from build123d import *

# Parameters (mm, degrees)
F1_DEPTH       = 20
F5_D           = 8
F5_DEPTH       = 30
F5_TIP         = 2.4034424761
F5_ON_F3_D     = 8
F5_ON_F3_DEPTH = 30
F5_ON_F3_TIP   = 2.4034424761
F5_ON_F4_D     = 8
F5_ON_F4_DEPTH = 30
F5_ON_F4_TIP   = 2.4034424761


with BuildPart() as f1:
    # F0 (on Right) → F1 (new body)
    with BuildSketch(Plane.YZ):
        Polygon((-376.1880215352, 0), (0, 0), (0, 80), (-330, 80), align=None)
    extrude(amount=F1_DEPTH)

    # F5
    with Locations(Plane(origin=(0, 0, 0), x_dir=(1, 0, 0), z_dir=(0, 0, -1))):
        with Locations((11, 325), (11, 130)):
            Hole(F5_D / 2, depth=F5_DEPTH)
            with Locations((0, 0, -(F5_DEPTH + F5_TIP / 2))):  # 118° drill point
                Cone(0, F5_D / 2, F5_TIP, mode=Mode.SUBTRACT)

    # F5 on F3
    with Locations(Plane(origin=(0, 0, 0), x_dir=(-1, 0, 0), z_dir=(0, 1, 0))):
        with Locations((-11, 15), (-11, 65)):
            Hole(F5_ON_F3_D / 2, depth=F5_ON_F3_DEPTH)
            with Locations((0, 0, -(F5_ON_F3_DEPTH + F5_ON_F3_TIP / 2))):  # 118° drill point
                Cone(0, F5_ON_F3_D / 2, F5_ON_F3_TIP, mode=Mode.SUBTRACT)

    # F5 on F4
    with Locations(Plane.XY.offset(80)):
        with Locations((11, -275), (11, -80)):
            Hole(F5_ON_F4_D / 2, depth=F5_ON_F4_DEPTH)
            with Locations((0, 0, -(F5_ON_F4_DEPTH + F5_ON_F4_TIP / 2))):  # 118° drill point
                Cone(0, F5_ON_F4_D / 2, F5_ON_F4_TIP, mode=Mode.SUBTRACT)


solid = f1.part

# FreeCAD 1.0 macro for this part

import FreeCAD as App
import Part
import Sketcher

V = App.Vector
Q = App.Units.Quantity

doc = App.newDocument("Part")
body = doc.addObject("PartDesign::Body", "Body")

# Sketch on YZ plane
sketch1 = body.newObject("Sketcher::SketchObject", "Sketch")
sketch1.AttachmentSupport = (doc.getObject("YZ_Plane"), [""])
sketch1.MapMode = "FlatFace"
sketch1.addGeometry([
    Part.LineSegment(V(-376, 0, 0), V(0, 0, 0)),
    Part.LineSegment(V(0, 0, 0), V(0, 80, 0)),
    Part.LineSegment(V(0, 80, 0), V(-330, 80, 0)),
    Part.LineSegment(V(-330, 80, 0), V(-376, 0, 0)),
], False)
sketch1.addConstraint([
    Sketcher.Constraint("Coincident", 0, 2, 1, 1),
    Sketcher.Constraint("Coincident", 1, 2, 2, 1),
    Sketcher.Constraint("Coincident", 2, 2, 3, 1),
    Sketcher.Constraint("Coincident", 3, 2, 0, 1),
    Sketcher.Constraint("Horizontal", 0),
    Sketcher.Constraint("Vertical", 1),
    Sketcher.Constraint("Horizontal", 2),
    Sketcher.Constraint("Coincident", 0, 2, -1, 1),
    Sketcher.Constraint("DistanceX", 2, 2, 2, 1, Q("330 mm")),
    Sketcher.Constraint("DistanceY", 1, 1, 1, 2, Q("80 mm")),
    Sketcher.Constraint("Angle", 3, Q("-120 deg")),
])
pad1 = body.newObject("PartDesign::Pad", "Pad")
pad1.Profile = sketch1
pad1.Length = 20

# Sketch on XY plane
sketch2 = body.newObject("Sketcher::SketchObject", "Sketch001")
sketch2.AttachmentSupport = (doc.getObject("XY_Plane"), [""])
sketch2.MapMode = "FlatFace"
sketch2.addGeometry([
    Part.Circle(V(11, -325, 0), V(0, 0, 1), 4),
    Part.Circle(V(11, -130, 0), V(0, 0, 1), 4),
], False)
sketch2.addConstraint([
    Sketcher.Constraint("Equal", 0, 1),
    Sketcher.Constraint("Vertical", 0, 3, 1, 3),
    Sketcher.Constraint("Diameter", 0, Q("8 mm")),
    Sketcher.Constraint("DistanceX", -1, 1, 0, 3, Q("11 mm")),
    Sketcher.Constraint("DistanceY", 0, 3, -1, 1, Q("325 mm")),
    Sketcher.Constraint("DistanceY", 1, 3, -1, 1, Q("130 mm")),
])
doc.recompute()
hole = body.newObject("PartDesign::Hole", "Hole")
hole.Profile = sketch2
hole.ThreadType = "None"
hole.Diameter = 8
hole.DepthType = "Dimension"
hole.Depth = 30
hole.DrillPoint = "Angled"
hole.DrillPointAngle = 118
hole.Reversed = True

# Sketch on XZ plane
sketch3 = body.newObject("Sketcher::SketchObject", "Sketch002")
sketch3.AttachmentSupport = (doc.getObject("XZ_Plane"), [""])
sketch3.MapMode = "FlatFace"
sketch3.addGeometry([
    Part.Circle(V(11, 15, 0), V(0, 0, 1), 4),
    Part.Circle(V(11, 65, 0), V(0, 0, 1), 4),
], False)
sketch3.addConstraint([
    Sketcher.Constraint("Equal", 0, 1),
    Sketcher.Constraint("Vertical", 0, 3, 1, 3),
    Sketcher.Constraint("Diameter", 0, Q("8 mm")),
    Sketcher.Constraint("DistanceX", -1, 1, 0, 3, Q("11 mm")),
    Sketcher.Constraint("DistanceY", -1, 1, 0, 3, Q("15 mm")),
    Sketcher.Constraint("DistanceY", -1, 1, 1, 3, Q("65 mm")),
])
doc.recompute()
hole2 = body.newObject("PartDesign::Hole", "Hole001")
hole2.Profile = sketch3
hole2.ThreadType = "None"
hole2.Diameter = 8
hole2.DepthType = "Dimension"
hole2.Depth = 30
hole2.DrillPoint = "Angled"
hole2.DrillPointAngle = 118
hole2.Reversed = True

# Sketch on XY plane
sketch4 = body.newObject("Sketcher::SketchObject", "Sketch003")
sketch4.AttachmentSupport = (doc.getObject("XY_Plane"), [""])
sketch4.MapMode = "FlatFace"
sketch4.AttachmentOffset = App.Placement(V(0, 0, 80), App.Rotation())
sketch4.addGeometry([
    Part.Circle(V(11, -275, 0), V(0, 0, 1), 4),
    Part.Circle(V(11, -80, 0), V(0, 0, 1), 4),
], False)
sketch4.addConstraint([
    Sketcher.Constraint("Equal", 0, 1),
    Sketcher.Constraint("Vertical", 0, 3, 1, 3),
    Sketcher.Constraint("Diameter", 0, Q("8 mm")),
    Sketcher.Constraint("DistanceX", -1, 1, 0, 3, Q("11 mm")),
    Sketcher.Constraint("DistanceY", 0, 3, -1, 1, Q("275 mm")),
    Sketcher.Constraint("DistanceY", 1, 3, -1, 1, Q("80 mm")),
])
doc.recompute()
hole3 = body.newObject("PartDesign::Hole", "Hole002")
hole3.Profile = sketch4
hole3.ThreadType = "None"
hole3.Diameter = 8
hole3.DepthType = "Dimension"
hole3.Depth = 30
hole3.DrillPoint = "Angled"
hole3.DrillPointAngle = 118

doc.recompute()
